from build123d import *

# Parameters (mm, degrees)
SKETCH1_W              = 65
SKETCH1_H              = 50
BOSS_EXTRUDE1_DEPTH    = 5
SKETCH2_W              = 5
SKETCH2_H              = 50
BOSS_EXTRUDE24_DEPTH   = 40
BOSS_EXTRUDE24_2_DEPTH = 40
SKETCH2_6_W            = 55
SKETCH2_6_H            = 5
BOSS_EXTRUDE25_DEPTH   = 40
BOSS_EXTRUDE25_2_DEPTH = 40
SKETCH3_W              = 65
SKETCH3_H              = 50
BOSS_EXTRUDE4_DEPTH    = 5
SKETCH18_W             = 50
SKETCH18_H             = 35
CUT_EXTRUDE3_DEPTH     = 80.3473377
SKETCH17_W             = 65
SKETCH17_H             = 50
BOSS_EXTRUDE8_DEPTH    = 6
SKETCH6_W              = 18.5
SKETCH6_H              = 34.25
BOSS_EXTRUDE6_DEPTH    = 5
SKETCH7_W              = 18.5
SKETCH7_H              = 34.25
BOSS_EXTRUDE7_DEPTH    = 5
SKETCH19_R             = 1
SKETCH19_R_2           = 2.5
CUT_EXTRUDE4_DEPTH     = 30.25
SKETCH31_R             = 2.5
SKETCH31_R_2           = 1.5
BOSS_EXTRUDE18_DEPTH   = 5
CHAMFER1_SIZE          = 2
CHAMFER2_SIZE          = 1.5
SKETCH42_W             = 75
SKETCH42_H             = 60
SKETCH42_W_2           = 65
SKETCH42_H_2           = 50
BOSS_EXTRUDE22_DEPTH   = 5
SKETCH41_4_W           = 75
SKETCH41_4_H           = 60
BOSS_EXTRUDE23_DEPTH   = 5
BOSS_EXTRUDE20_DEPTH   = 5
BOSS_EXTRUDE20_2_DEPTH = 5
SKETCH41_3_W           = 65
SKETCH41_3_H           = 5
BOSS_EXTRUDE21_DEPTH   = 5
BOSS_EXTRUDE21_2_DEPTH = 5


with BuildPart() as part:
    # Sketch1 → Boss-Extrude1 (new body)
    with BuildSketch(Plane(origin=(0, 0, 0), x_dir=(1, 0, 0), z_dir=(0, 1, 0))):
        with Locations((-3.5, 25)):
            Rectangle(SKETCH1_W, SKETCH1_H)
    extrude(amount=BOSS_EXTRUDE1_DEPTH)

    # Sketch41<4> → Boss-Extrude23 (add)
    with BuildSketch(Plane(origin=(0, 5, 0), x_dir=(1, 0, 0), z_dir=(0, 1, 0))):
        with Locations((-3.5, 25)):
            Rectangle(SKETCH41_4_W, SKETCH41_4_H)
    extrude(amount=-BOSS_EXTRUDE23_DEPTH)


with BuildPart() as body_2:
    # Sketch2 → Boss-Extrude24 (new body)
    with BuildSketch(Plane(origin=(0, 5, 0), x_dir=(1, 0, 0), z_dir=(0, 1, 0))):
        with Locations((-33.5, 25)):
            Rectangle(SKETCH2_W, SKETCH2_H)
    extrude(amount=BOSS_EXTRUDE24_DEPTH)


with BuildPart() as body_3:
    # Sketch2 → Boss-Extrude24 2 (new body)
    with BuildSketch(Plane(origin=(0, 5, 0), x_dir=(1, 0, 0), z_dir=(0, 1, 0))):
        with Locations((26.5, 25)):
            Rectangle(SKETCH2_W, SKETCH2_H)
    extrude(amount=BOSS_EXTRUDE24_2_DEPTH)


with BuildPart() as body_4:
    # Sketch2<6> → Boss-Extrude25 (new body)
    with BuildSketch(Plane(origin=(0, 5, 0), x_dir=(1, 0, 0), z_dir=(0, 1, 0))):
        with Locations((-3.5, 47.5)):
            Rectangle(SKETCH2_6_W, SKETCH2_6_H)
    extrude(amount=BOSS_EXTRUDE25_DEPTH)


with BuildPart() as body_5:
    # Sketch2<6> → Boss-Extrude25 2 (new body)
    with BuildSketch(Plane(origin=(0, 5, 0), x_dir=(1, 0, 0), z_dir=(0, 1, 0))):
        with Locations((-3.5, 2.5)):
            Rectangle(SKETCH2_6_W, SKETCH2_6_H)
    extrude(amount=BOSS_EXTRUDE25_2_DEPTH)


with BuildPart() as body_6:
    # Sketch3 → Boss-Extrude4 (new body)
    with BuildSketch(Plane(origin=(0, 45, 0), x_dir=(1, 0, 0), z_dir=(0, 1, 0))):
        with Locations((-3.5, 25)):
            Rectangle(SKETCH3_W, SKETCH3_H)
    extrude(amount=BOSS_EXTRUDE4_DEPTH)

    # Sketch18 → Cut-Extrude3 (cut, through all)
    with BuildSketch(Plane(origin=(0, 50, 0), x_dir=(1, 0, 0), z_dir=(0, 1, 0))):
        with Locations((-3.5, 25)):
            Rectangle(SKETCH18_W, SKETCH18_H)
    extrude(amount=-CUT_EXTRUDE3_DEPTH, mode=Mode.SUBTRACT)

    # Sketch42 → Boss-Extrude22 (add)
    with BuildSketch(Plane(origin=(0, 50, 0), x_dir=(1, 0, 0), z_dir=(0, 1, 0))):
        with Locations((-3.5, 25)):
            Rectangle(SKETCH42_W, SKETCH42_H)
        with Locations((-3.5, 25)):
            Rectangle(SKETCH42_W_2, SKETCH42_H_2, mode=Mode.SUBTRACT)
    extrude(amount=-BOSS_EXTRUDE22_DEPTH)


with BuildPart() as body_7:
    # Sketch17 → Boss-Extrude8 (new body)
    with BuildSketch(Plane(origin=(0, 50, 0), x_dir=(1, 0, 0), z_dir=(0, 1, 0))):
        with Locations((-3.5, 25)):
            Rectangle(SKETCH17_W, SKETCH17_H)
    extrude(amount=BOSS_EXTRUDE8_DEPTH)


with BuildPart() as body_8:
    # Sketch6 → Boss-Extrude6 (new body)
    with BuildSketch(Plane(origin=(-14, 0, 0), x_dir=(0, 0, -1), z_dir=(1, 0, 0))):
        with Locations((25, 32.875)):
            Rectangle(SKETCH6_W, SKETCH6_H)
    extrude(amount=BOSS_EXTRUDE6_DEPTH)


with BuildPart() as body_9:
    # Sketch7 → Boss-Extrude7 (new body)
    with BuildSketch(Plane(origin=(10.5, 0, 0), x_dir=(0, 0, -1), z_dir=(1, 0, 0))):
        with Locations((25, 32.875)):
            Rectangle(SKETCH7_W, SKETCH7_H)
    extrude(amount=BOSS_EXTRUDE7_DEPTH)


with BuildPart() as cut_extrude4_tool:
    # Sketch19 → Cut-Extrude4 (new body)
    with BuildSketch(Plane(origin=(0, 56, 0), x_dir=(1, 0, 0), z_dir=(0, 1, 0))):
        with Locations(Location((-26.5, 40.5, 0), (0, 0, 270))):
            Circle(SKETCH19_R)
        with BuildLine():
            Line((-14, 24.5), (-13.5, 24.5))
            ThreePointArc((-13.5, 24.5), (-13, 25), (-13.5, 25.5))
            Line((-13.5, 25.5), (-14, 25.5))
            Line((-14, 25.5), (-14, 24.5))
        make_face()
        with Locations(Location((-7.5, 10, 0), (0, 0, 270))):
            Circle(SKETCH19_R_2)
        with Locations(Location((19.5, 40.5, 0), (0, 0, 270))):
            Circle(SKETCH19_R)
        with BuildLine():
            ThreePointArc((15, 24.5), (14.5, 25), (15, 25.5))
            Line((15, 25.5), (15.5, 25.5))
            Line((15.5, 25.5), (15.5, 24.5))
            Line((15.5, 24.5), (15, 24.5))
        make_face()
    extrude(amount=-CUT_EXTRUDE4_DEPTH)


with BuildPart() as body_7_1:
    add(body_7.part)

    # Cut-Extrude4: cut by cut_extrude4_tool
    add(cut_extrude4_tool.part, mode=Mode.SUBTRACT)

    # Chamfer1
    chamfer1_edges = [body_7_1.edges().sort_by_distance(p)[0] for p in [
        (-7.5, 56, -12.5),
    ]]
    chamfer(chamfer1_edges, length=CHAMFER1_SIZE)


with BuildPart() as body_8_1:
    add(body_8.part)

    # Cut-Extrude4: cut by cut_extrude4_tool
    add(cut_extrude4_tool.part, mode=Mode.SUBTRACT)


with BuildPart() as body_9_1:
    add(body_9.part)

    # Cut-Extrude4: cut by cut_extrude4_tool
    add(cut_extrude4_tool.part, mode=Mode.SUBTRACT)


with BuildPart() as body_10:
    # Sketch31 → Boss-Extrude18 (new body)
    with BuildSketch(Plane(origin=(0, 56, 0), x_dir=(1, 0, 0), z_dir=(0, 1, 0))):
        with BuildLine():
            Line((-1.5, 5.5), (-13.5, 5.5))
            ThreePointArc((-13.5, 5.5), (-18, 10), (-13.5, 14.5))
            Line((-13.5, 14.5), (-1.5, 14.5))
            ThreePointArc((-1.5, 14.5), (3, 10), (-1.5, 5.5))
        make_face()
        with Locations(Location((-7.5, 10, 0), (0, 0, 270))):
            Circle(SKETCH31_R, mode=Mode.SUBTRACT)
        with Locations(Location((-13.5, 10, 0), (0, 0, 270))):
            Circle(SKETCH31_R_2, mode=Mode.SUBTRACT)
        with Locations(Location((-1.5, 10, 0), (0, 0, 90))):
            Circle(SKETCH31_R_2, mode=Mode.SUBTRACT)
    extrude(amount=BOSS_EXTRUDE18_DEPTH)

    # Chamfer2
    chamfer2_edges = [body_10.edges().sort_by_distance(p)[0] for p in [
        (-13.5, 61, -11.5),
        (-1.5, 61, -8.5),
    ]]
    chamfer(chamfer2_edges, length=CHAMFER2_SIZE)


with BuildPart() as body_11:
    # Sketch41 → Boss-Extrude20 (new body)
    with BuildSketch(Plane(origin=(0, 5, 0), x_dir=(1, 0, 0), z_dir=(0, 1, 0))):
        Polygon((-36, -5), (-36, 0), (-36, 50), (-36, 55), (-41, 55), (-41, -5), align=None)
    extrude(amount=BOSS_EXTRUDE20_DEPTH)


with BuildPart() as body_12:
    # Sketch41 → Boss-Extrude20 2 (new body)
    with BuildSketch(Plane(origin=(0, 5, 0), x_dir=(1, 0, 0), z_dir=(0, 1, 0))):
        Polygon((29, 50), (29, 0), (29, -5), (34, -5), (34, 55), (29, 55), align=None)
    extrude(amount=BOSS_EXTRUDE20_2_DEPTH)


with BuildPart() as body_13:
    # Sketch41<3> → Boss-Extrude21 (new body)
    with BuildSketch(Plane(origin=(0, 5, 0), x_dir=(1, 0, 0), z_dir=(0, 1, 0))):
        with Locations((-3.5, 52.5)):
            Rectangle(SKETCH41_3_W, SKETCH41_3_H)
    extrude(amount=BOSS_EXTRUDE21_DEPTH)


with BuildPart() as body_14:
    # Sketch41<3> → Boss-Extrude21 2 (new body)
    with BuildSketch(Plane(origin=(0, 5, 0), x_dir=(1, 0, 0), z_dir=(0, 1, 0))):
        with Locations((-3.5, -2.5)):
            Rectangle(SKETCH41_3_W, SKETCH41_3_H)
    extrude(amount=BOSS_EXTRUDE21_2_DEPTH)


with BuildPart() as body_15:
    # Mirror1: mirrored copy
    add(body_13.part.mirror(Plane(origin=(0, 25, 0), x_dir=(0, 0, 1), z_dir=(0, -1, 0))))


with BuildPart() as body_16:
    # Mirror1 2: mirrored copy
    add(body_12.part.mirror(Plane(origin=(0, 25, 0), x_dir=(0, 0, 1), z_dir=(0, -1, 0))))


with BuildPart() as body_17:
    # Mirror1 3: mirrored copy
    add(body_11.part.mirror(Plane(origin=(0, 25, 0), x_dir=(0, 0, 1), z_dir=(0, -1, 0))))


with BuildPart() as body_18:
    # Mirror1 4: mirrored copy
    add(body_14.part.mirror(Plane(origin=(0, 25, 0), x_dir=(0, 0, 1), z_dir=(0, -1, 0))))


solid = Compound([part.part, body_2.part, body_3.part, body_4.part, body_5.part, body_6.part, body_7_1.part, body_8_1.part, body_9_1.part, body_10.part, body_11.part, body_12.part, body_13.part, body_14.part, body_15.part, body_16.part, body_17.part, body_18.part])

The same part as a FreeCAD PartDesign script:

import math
import FreeCAD as App
import Part
import Sketcher
Q = App.Units.Quantity


def edges_at(feature, points):
    """Names of the edges that pass closest to the given points."""
    edges = feature.Shape.Edges
    near = lambda p: min(range(len(edges)), key=lambda i: edges[i].distToShape(Part.Vertex(*p))[0])
    return sorted({f"Edge{near(p) + 1}" for p in points})

doc = App.newDocument("Part")
body = doc.addObject("PartDesign::Body", "Body")

sketch1 = body.newObject("Sketcher::SketchObject", "Sketch")
sketch1.AttachmentSupport = (doc.getObject("XZ_Plane"), [""])
sketch1.MapMode = "FlatFace"
sketch1.addGeometry([
    Part.LineSegment(App.Vector(-36, -50, 0), App.Vector(-36, 0, 0)),
    Part.LineSegment(App.Vector(-36, 0, 0), App.Vector(29, 0, 0)),
    Part.LineSegment(App.Vector(29, 0, 0), App.Vector(29, -50, 0)),
    Part.LineSegment(App.Vector(29, -50, 0), App.Vector(-36, -50, 0)),
], False)
sketch1.addConstraint([
    Sketcher.Constraint("Coincident", 0, 2, 1, 1),
    Sketcher.Constraint("Coincident", 1, 2, 2, 1),
    Sketcher.Constraint("Coincident", 2, 2, 3, 1),
    Sketcher.Constraint("Coincident", 3, 2, 0, 1),
    Sketcher.Constraint("Vertical", 0),
    Sketcher.Constraint("Horizontal", 1),
    Sketcher.Constraint("Vertical", 2),
    Sketcher.Constraint("Horizontal", 3),
    Sketcher.Constraint("PointOnObject", 0, 2, -1),
    Sketcher.Constraint("DistanceX", 1, 1, 1, 2, Q("65 mm")),
    Sketcher.Constraint("DistanceY", 0, 1, 0, 2, Q("50 mm")),
    Sketcher.Constraint("DistanceX", 0, 2, -1, 1, Q("36 mm")),
])
pad1 = body.newObject("PartDesign::Pad", "Pad")
pad1.Profile = sketch1
pad1.Length = 5
pad1.Reversed = True

sketch2 = body.newObject("Sketcher::SketchObject", "Sketch001")
sketch2.AttachmentSupport = (doc.getObject("XZ_Plane"), [""])
sketch2.MapMode = "FlatFace"
sketch2.AttachmentOffset = App.Placement(App.Vector(0, 0, -5), App.Rotation())
sketch2.addGeometry([
    Part.LineSegment(App.Vector(-41, -55, 0), App.Vector(-41, 5, 0)),
    Part.LineSegment(App.Vector(-41, 5, 0), App.Vector(34, 5, 0)),
    Part.LineSegment(App.Vector(34, 5, 0), App.Vector(34, -55, 0)),
    Part.LineSegment(App.Vector(34, -55, 0), App.Vector(-41, -55, 0)),
], False)
sketch2.addConstraint([
    Sketcher.Constraint("Coincident", 0, 2, 1, 1),
    Sketcher.Constraint("Coincident", 1, 2, 2, 1),
    Sketcher.Constraint("Coincident", 2, 2, 3, 1),
    Sketcher.Constraint("Coincident", 3, 2, 0, 1),
    Sketcher.Constraint("Vertical", 0),
    Sketcher.Constraint("Horizontal", 1),
    Sketcher.Constraint("Vertical", 2),
    Sketcher.Constraint("Horizontal", 3),
    Sketcher.Constraint("DistanceX", 1, 1, 1, 2, Q("75 mm")),
    Sketcher.Constraint("DistanceY", 0, 1, 0, 2, Q("60 mm")),
    Sketcher.Constraint("DistanceX", 0, 2, -1, 1, Q("41 mm")),
    Sketcher.Constraint("DistanceY", -1, 1, 0, 2, Q("5 mm")),
])
pad2 = body.newObject("PartDesign::Pad", "Pad001")
pad2.Profile = sketch2
pad2.Length = 5
body2 = doc.addObject("PartDesign::Body", "Body001")

sketch3 = body2.newObject("Sketcher::SketchObject", "Sketch002")
sketch3.AttachmentSupport = (doc.getObject("XZ_Plane001"), [""])
sketch3.MapMode = "FlatFace"
sketch3.AttachmentOffset = App.Placement(App.Vector(0, 0, -5), App.Rotation())
sketch3.addGeometry([
    Part.LineSegment(App.Vector(-36, -50, 0), App.Vector(-36, 0, 0)),
    Part.LineSegment(App.Vector(-36, 0, 0), App.Vector(-31, 0, 0)),
    Part.LineSegment(App.Vector(-31, 0, 0), App.Vector(-31, -50, 0)),
    Part.LineSegment(App.Vector(-31, -50, 0), App.Vector(-36, -50, 0)),
], False)
sketch3.addConstraint([
    Sketcher.Constraint("Coincident", 0, 2, 1, 1),
    Sketcher.Constraint("Coincident", 1, 2, 2, 1),
    Sketcher.Constraint("Coincident", 2, 2, 3, 1),
    Sketcher.Constraint("Coincident", 3, 2, 0, 1),
    Sketcher.Constraint("Vertical", 0),
    Sketcher.Constraint("Horizontal", 1),
    Sketcher.Constraint("Vertical", 2),
    Sketcher.Constraint("Horizontal", 3),
    Sketcher.Constraint("PointOnObject", 0, 2, -1),
    Sketcher.Constraint("DistanceX", 1, 1, 1, 2, Q("5 mm")),
    Sketcher.Constraint("DistanceY", 0, 1, 0, 2, Q("50 mm")),
    Sketcher.Constraint("DistanceX", 0, 2, -1, 1, Q("36 mm")),
])
pad3 = body2.newObject("PartDesign::Pad", "Pad002")
pad3.Profile = sketch3
pad3.Length = 40
pad3.Reversed = True
body3 = doc.addObject("PartDesign::Body", "Body002")

sketch4 = body3.newObject("Sketcher::SketchObject", "Sketch003")
sketch4.AttachmentSupport = (doc.getObject("XZ_Plane002"), [""])
sketch4.MapMode = "FlatFace"
sketch4.AttachmentOffset = App.Placement(App.Vector(0, 0, -5), App.Rotation())
sketch4.addGeometry([
    Part.LineSegment(App.Vector(24, -50, 0), App.Vector(24, 0, 0)),
    Part.LineSegment(App.Vector(24, 0, 0), App.Vector(29, 0, 0)),
    Part.LineSegment(App.Vector(29, 0, 0), App.Vector(29, -50, 0)),
    Part.LineSegment(App.Vector(29, -50, 0), App.Vector(24, -50, 0)),
], False)
sketch4.addConstraint([
    Sketcher.Constraint("Coincident", 0, 2, 1, 1),
    Sketcher.Constraint("Coincident", 1, 2, 2, 1),
    Sketcher.Constraint("Coincident", 2, 2, 3, 1),
    Sketcher.Constraint("Coincident", 3, 2, 0, 1),
    Sketcher.Constraint("Vertical", 0),
    Sketcher.Constraint("Horizontal", 1),
    Sketcher.Constraint("Vertical", 2),
    Sketcher.Constraint("Horizontal", 3),
    Sketcher.Constraint("PointOnObject", 0, 2, -1),
    Sketcher.Constraint("DistanceX", 1, 1, 1, 2, Q("5 mm")),
    Sketcher.Constraint("DistanceY", 0, 1, 0, 2, Q("50 mm")),
    Sketcher.Constraint("DistanceX", -1, 1, 0, 2, Q("24 mm")),
])
pad4 = body3.newObject("PartDesign::Pad", "Pad003")
pad4.Profile = sketch4
pad4.Length = 40
pad4.Reversed = True
body4 = doc.addObject("PartDesign::Body", "Body003")

sketch5 = body4.newObject("Sketcher::SketchObject", "Sketch004")
sketch5.AttachmentSupport = (doc.getObject("XZ_Plane003"), [""])
sketch5.MapMode = "FlatFace"
sketch5.AttachmentOffset = App.Placement(App.Vector(0, 0, -5), App.Rotation())
sketch5.addGeometry([
    Part.LineSegment(App.Vector(-31, -50, 0), App.Vector(-31, -45, 0)),
    Part.LineSegment(App.Vector(-31, -45, 0), App.Vector(24, -45, 0)),
    Part.LineSegment(App.Vector(24, -45, 0), App.Vector(24, -50, 0)),
    Part.LineSegment(App.Vector(24, -50, 0), App.Vector(-31, -50, 0)),
], False)
sketch5.addConstraint([
    Sketcher.Constraint("Coincident", 0, 2, 1, 1),
    Sketcher.Constraint("Coincident", 1, 2, 2, 1),
    Sketcher.Constraint("Coincident", 2, 2, 3, 1),
    Sketcher.Constraint("Coincident", 3, 2, 0, 1),
    Sketcher.Constraint("Vertical", 0),
    Sketcher.Constraint("Horizontal", 1),
    Sketcher.Constraint("Vertical", 2),
    Sketcher.Constraint("Horizontal", 3),
    Sketcher.Constraint("DistanceX", 1, 1, 1, 2, Q("55 mm")),
    Sketcher.Constraint("DistanceY", 0, 1, 0, 2, Q("5 mm")),
    Sketcher.Constraint("DistanceX", 0, 2, -1, 1, Q("31 mm")),
    Sketcher.Constraint("DistanceY", 0, 2, -1, 1, Q("45 mm")),
])
pad5 = body4.newObject("PartDesign::Pad", "Pad004")
pad5.Profile = sketch5
pad5.Length = 40
pad5.Reversed = True
body5 = doc.addObject("PartDesign::Body", "Body004")

sketch6 = body5.newObject("Sketcher::SketchObject", "Sketch005")
sketch6.AttachmentSupport = (doc.getObject("XZ_Plane004"), [""])
sketch6.MapMode = "FlatFace"
sketch6.AttachmentOffset = App.Placement(App.Vector(0, 0, -5), App.Rotation())
sketch6.addGeometry([
    Part.LineSegment(App.Vector(-31, -5, 0), App.Vector(-31, 0, 0)),
    Part.LineSegment(App.Vector(-31, 0, 0), App.Vector(24, 0, 0)),
    Part.LineSegment(App.Vector(24, 0, 0), App.Vector(24, -5, 0)),
    Part.LineSegment(App.Vector(24, -5, 0), App.Vector(-31, -5, 0)),
], False)
sketch6.addConstraint([
    Sketcher.Constraint("Coincident", 0, 2, 1, 1),
    Sketcher.Constraint("Coincident", 1, 2, 2, 1),
    Sketcher.Constraint("Coincident", 2, 2, 3, 1),
    Sketcher.Constraint("Coincident", 3, 2, 0, 1),
    Sketcher.Constraint("Vertical", 0),
    Sketcher.Constraint("Horizontal", 1),
    Sketcher.Constraint("Vertical", 2),
    Sketcher.Constraint("Horizontal", 3),
    Sketcher.Constraint("PointOnObject", 0, 2, -1),
    Sketcher.Constraint("DistanceX", 1, 1, 1, 2, Q("55 mm")),
    Sketcher.Constraint("DistanceY", 0, 1, 0, 2, Q("5 mm")),
    Sketcher.Constraint("DistanceX", 0, 2, -1, 1, Q("31 mm")),
])
pad6 = body5.newObject("PartDesign::Pad", "Pad005")
pad6.Profile = sketch6
pad6.Length = 40
pad6.Reversed = True
body6 = doc.addObject("PartDesign::Body", "Body005")

sketch7 = body6.newObject("Sketcher::SketchObject", "Sketch006")
sketch7.AttachmentSupport = (doc.getObject("XZ_Plane005"), [""])
sketch7.MapMode = "FlatFace"
sketch7.AttachmentOffset = App.Placement(App.Vector(0, 0, -45), App.Rotation())
sketch7.addGeometry([
    Part.LineSegment(App.Vector(-36, -50, 0), App.Vector(-36, 0, 0)),
    Part.LineSegment(App.Vector(-36, 0, 0), App.Vector(29, 0, 0)),
    Part.LineSegment(App.Vector(29, 0, 0), App.Vector(29, -50, 0)),
    Part.LineSegment(App.Vector(29, -50, 0), App.Vector(-36, -50, 0)),
], False)
sketch7.addConstraint([
    Sketcher.Constraint("Coincident", 0, 2, 1, 1),
    Sketcher.Constraint("Coincident", 1, 2, 2, 1),
    Sketcher.Constraint("Coincident", 2, 2, 3, 1),
    Sketcher.Constraint("Coincident", 3, 2, 0, 1),
    Sketcher.Constraint("Vertical", 0),
    Sketcher.Constraint("Horizontal", 1),
    Sketcher.Constraint("Vertical", 2),
    Sketcher.Constraint("Horizontal", 3),
    Sketcher.Constraint("PointOnObject", 0, 2, -1),
    Sketcher.Constraint("DistanceX", 1, 1, 1, 2, Q("65 mm")),
    Sketcher.Constraint("DistanceY", 0, 1, 0, 2, Q("50 mm")),
    Sketcher.Constraint("DistanceX", 0, 2, -1, 1, Q("36 mm")),
])
pad7 = body6.newObject("PartDesign::Pad", "Pad006")
pad7.Profile = sketch7
pad7.Length = 5
pad7.Reversed = True

sketch8 = body6.newObject("Sketcher::SketchObject", "Sketch007")
sketch8.AttachmentSupport = (doc.getObject("XZ_Plane005"), [""])
sketch8.MapMode = "FlatFace"
sketch8.AttachmentOffset = App.Placement(App.Vector(0, 0, -50), App.Rotation())
sketch8.addGeometry([
    Part.LineSegment(App.Vector(-28.5, -42.5, 0), App.Vector(-28.5, -7.5, 0)),
    Part.LineSegment(App.Vector(-28.5, -7.5, 0), App.Vector(21.5, -7.5, 0)),
    Part.LineSegment(App.Vector(21.5, -7.5, 0), App.Vector(21.5, -42.5, 0)),
    Part.LineSegment(App.Vector(21.5, -42.5, 0), App.Vector(-28.5, -42.5, 0)),
], False)
sketch8.addConstraint([
    Sketcher.Constraint("Coincident", 0, 2, 1, 1),
    Sketcher.Constraint("Coincident", 1, 2, 2, 1),
    Sketcher.Constraint("Coincident", 2, 2, 3, 1),
    Sketcher.Constraint("Coincident", 3, 2, 0, 1),
    Sketcher.Constraint("Vertical", 0),
    Sketcher.Constraint("Horizontal", 1),
    Sketcher.Constraint("Vertical", 2),
    Sketcher.Constraint("Horizontal", 3),
    Sketcher.Constraint("DistanceX", 1, 1, 1, 2, Q("50 mm")),
    Sketcher.Constraint("DistanceY", 0, 1, 0, 2, Q("35 mm")),
    Sketcher.Constraint("DistanceX", 0, 2, -1, 1, Q("28.5 mm")),
    Sketcher.Constraint("DistanceY", 0, 2, -1, 1, Q("7.5 mm")),
])
pocket1 = body6.newObject("PartDesign::Pocket", "Pocket")
pocket1.Profile = sketch8
pocket1.Type = "ThroughAll"
pocket1.Reversed = True

sketch9 = body6.newObject("Sketcher::SketchObject", "Sketch008")
sketch9.AttachmentSupport = (doc.getObject("XZ_Plane005"), [""])
sketch9.MapMode = "FlatFace"
sketch9.AttachmentOffset = App.Placement(App.Vector(0, 0, -50), App.Rotation())
sketch9.addGeometry([
    Part.LineSegment(App.Vector(-41, -55, 0), App.Vector(-41, 5, 0)),
    Part.LineSegment(App.Vector(-41, 5, 0), App.Vector(34, 5, 0)),
    Part.LineSegment(App.Vector(34, 5, 0), App.Vector(34, -55, 0)),
    Part.LineSegment(App.Vector(34, -55, 0), App.Vector(-41, -55, 0)),
    Part.LineSegment(App.Vector(29, 0, 0), App.Vector(-36, 0, 0)),
    Part.LineSegment(App.Vector(-36, 0, 0), App.Vector(-36, -50, 0)),
    Part.LineSegment(App.Vector(-36, -50, 0), App.Vector(29, -50, 0)),
    Part.LineSegment(App.Vector(29, -50, 0), App.Vector(29, 0, 0)),
], False)
sketch9.addConstraint([
    Sketcher.Constraint("Coincident", 0, 2, 1, 1),
    Sketcher.Constraint("Coincident", 1, 2, 2, 1),
    Sketcher.Constraint("Coincident", 2, 2, 3, 1),
    Sketcher.Constraint("Coincident", 3, 2, 0, 1),
    Sketcher.Constraint("Coincident", 4, 2, 5, 1),
    Sketcher.Constraint("Coincident", 5, 2, 6, 1),
    Sketcher.Constraint("Coincident", 6, 2, 7, 1),
    Sketcher.Constraint("Coincident", 7, 2, 4, 1),
    Sketcher.Constraint("Vertical", 0),
    Sketcher.Constraint("Horizontal", 1),
    Sketcher.Constraint("Vertical", 2),
    Sketcher.Constraint("Horizontal", 3),
    Sketcher.Constraint("Horizontal", 4),
    Sketcher.Constraint("Vertical", 5),
    Sketcher.Constraint("Horizontal", 6),
    Sketcher.Constraint("Vertical", 7),
    Sketcher.Constraint("PointOnObject", 4, 2, -1),
    Sketcher.Constraint("DistanceX", 1, 1, 1, 2, Q("75 mm")),
    Sketcher.Constraint("DistanceX", 4, 2, 4, 1, Q("65 mm")),
    Sketcher.Constraint("DistanceY", 0, 1, 0, 2, Q("60 mm")),
    Sketcher.Constraint("DistanceY", 5, 2, 5, 1, Q("50 mm")),
    Sketcher.Constraint("DistanceX", 0, 2, -1, 1, Q("41 mm")),
    Sketcher.Constraint("DistanceY", -1, 1, 0, 2, Q("5 mm")),
    Sketcher.Constraint("DistanceX", 4, 2, -1, 1, Q("36 mm")),
])
pad8 = body6.newObject("PartDesign::Pad", "Pad007")
pad8.Profile = sketch9
pad8.Length = 5
body7 = doc.addObject("PartDesign::Body", "Body006")

sketch10 = body7.newObject("Sketcher::SketchObject", "Sketch009")
sketch10.AttachmentSupport = (doc.getObject("XZ_Plane006"), [""])
sketch10.MapMode = "FlatFace"
sketch10.AttachmentOffset = App.Placement(App.Vector(0, 0, -50), App.Rotation())
sketch10.addGeometry([
    Part.LineSegment(App.Vector(-36, -50, 0), App.Vector(-36, 0, 0)),
    Part.LineSegment(App.Vector(-36, 0, 0), App.Vector(29, 0, 0)),
    Part.LineSegment(App.Vector(29, 0, 0), App.Vector(29, -50, 0)),
    Part.LineSegment(App.Vector(29, -50, 0), App.Vector(-36, -50, 0)),
], False)
sketch10.addConstraint([
    Sketcher.Constraint("Coincident", 0, 2, 1, 1),
    Sketcher.Constraint("Coincident", 1, 2, 2, 1),
    Sketcher.Constraint("Coincident", 2, 2, 3, 1),
    Sketcher.Constraint("Coincident", 3, 2, 0, 1),
    Sketcher.Constraint("Vertical", 0),
    Sketcher.Constraint("Horizontal", 1),
    Sketcher.Constraint("Vertical", 2),
    Sketcher.Constraint("Horizontal", 3),
    Sketcher.Constraint("PointOnObject", 0, 2, -1),
    Sketcher.Constraint("DistanceX", 1, 1, 1, 2, Q("65 mm")),
    Sketcher.Constraint("DistanceY", 0, 1, 0, 2, Q("50 mm")),
    Sketcher.Constraint("DistanceX", 0, 2, -1, 1, Q("36 mm")),
])
pad9 = body7.newObject("PartDesign::Pad", "Pad008")
pad9.Profile = sketch10
pad9.Length = 6
pad9.Reversed = True
body8 = doc.addObject("PartDesign::Body", "Body007")

sketch11 = body8.newObject("Sketcher::SketchObject", "Sketch010")
sketch11.AttachmentSupport = (doc.getObject("YZ_Plane007"), [""])
sketch11.MapMode = "FlatFace"
sketch11.AttachmentOffset = App.Placement(App.Vector(0, 0, -14), App.Rotation())
sketch11.addGeometry([
    Part.LineSegment(App.Vector(50, -15.75, 0), App.Vector(15.75, -15.75, 0)),
    Part.LineSegment(App.Vector(15.75, -15.75, 0), App.Vector(15.75, -34.25, 0)),
    Part.LineSegment(App.Vector(15.75, -34.25, 0), App.Vector(50, -34.25, 0)),
    Part.LineSegment(App.Vector(50, -34.25, 0), App.Vector(50, -15.75, 0)),
], False)
sketch11.addConstraint([
    Sketcher.Constraint("Coincident", 0, 2, 1, 1),
    Sketcher.Constraint("Coincident", 1, 2, 2, 1),
    Sketcher.Constraint("Coincident", 2, 2, 3, 1),
    Sketcher.Constraint("Coincident", 3, 2, 0, 1),
    Sketcher.Constraint("Horizontal", 0),
    Sketcher.Constraint("Vertical", 1),
    Sketcher.Constraint("Horizontal", 2),
    Sketcher.Constraint("Vertical", 3),
    Sketcher.Constraint("DistanceY", 1, 2, 1, 1, Q("18.5 mm")),
    Sketcher.Constraint("DistanceX", -1, 1, 2, 2, Q("50 mm")),
    Sketcher.Constraint("DistanceX", 0, 2, 0, 1, Q("34.25 mm")),
    Sketcher.Constraint("DistanceY", 0, 2, -1, 1, Q("15.75 mm")),
])
pad10 = body8.newObject("PartDesign::Pad", "Pad009")
pad10.Profile = sketch11
pad10.Length = 5
body9 = doc.addObject("PartDesign::Body", "Body008")

sketch12 = body9.newObject("Sketcher::SketchObject", "Sketch011")
sketch12.AttachmentSupport = (doc.getObject("YZ_Plane008"), [""])
sketch12.MapMode = "FlatFace"
sketch12.AttachmentOffset = App.Placement(App.Vector(0, 0, 10.5), App.Rotation())
sketch12.addGeometry([
    Part.LineSegment(App.Vector(50, -15.75, 0), App.Vector(15.75, -15.75, 0)),
    Part.LineSegment(App.Vector(15.75, -15.75, 0), App.Vector(15.75, -34.25, 0)),
    Part.LineSegment(App.Vector(15.75, -34.25, 0), App.Vector(50, -34.25, 0)),
    Part.LineSegment(App.Vector(50, -34.25, 0), App.Vector(50, -15.75, 0)),
], False)
sketch12.addConstraint([
    Sketcher.Constraint("Coincident", 0, 2, 1, 1),
    Sketcher.Constraint("Coincident", 1, 2, 2, 1),
    Sketcher.Constraint("Coincident", 2, 2, 3, 1),
    Sketcher.Constraint("Coincident", 3, 2, 0, 1),
    Sketcher.Constraint("Horizontal", 0),
    Sketcher.Constraint("Vertical", 1),
    Sketcher.Constraint("Horizontal", 2),
    Sketcher.Constraint("Vertical", 3),
    Sketcher.Constraint("DistanceY", 1, 2, 1, 1, Q("18.5 mm")),
    Sketcher.Constraint("DistanceX", -1, 1, 2, 2, Q("50 mm")),
    Sketcher.Constraint("DistanceX", 0, 2, 0, 1, Q("34.25 mm")),
    Sketcher.Constraint("DistanceY", 0, 2, -1, 1, Q("15.75 mm")),
])
pad11 = body9.newObject("PartDesign::Pad", "Pad010")
pad11.Profile = sketch12
pad11.Length = 5
body10 = doc.addObject("PartDesign::Body", "Body009")
body10.AllowCompound = True

sketch13 = body10.newObject("Sketcher::SketchObject", "Sketch012")
sketch13.AttachmentSupport = (doc.getObject("XZ_Plane009"), [""])
sketch13.MapMode = "FlatFace"
sketch13.AttachmentOffset = App.Placement(App.Vector(0, 0, -56), App.Rotation())
sketch13.addGeometry([
    Part.Circle(App.Vector(-26.5, -40.5, 0), App.Vector(0, 0, 1), 1),
    Part.LineSegment(App.Vector(-14, -24.5, 0), App.Vector(-13.5, -24.5, 0)),
    Part.ArcOfCircle(Part.Circle(App.Vector(-13.5, -25, 0), App.Vector(0, 0, 1), 0.5), math.radians(-90), math.radians(90)),
    Part.LineSegment(App.Vector(-13.5, -25.5, 0), App.Vector(-14, -25.5, 0)),
    Part.LineSegment(App.Vector(-14, -25.5, 0), App.Vector(-14, -24.5, 0)),
    Part.Circle(App.Vector(-7.5, -10, 0), App.Vector(0, 0, 1), 2.5),
    Part.Circle(App.Vector(19.5, -40.5, 0), App.Vector(0, 0, 1), 1),
    Part.ArcOfCircle(Part.Circle(App.Vector(15, -25, 0), App.Vector(0, 0, 1), 0.5), math.radians(90), math.radians(270)),
    Part.LineSegment(App.Vector(15, -24.5, 0), App.Vector(15.5, -24.5, 0)),
    Part.LineSegment(App.Vector(15.5, -24.5, 0), App.Vector(15.5, -25.5, 0)),
    Part.LineSegment(App.Vector(15.5, -25.5, 0), App.Vector(15, -25.5, 0)),
], False)
sketch13.addConstraint([
    Sketcher.Constraint("Tangent", 1, 2, 2, 2),
    Sketcher.Constraint("Tangent", 2, 1, 3, 1),
    Sketcher.Constraint("Coincident", 3, 2, 4, 1),
    Sketcher.Constraint("Coincident", 4, 2, 1, 1),
    Sketcher.Constraint("Tangent", 7, 1, 8, 1),
    Sketcher.Constraint("Coincident", 8, 2, 9, 1),
    Sketcher.Constraint("Coincident", 9, 2, 10, 1),
    Sketcher.Constraint("Tangent", 10, 2, 7, 2),
    Sketcher.Constraint("Horizontal", 1),
    Sketcher.Constraint("Horizontal", 3),
    Sketcher.Constraint("Vertical", 4),
    Sketcher.Constraint("Horizontal", 8),
    Sketcher.Constraint("Vertical", 9),
    Sketcher.Constraint("Horizontal", 10),
    Sketcher.Constraint("Equal", 0, 6),
    Sketcher.Constraint("Equal", 2, 7),
    Sketcher.Constraint("Horizontal", 0, 3, 6, 3),
    Sketcher.Constraint("Horizontal", 2, 3, 7, 3),
    Sketcher.Constraint("Equal", 3, 8),
    Sketcher.Constraint("Diameter", 0, Q("2 mm")),
    Sketcher.Constraint("Diameter", 5, Q("5 mm")),
    Sketcher.Constraint("Radius", 2, Q("0.5 mm")),
    Sketcher.Constraint("DistanceX", 1, 1, 1, 2, Q("0.5 mm")),
    Sketcher.Constraint("DistanceY", 2, 3, -1, 1, Q("25 mm")),
    Sketcher.Constraint("DistanceY", 5, 3, -1, 1, Q("10 mm")),
    Sketcher.Constraint("DistanceX", -1, 1, 7, 3, Q("15 mm")),
    Sketcher.Constraint("DistanceX", 3, 2, -1, 1, Q("14 mm")),
    Sketcher.Constraint("DistanceX", 0, 3, 2, 3, Q("13 mm")),
    Sketcher.Constraint("DistanceX", 2, 3, 5, 3, Q("6 mm")),
    Sketcher.Constraint("DistanceX", 2, 3, 6, 3, Q("33 mm")),
    Sketcher.Constraint("DistanceY", 0, 3, 1, 2, Q("16 mm")),
])
pad12 = body10.newObject("PartDesign::Pad", "Pad011")
pad12.Profile = sketch13
pad12.Length = 30.25
doc.recompute()

body11 = doc.addObject("PartDesign::Body", "Body010")
body11.BaseFeature = body10
boolean = body7.newObject("PartDesign::Boolean", "Boolean")
boolean.Type = "Cut"
boolean.addObjects([body11])
doc.recompute()

chamfer = body7.newObject("PartDesign::Chamfer", "Chamfer")
chamfer.Base = (boolean, edges_at(boolean, [(-7.5, 56, -12.5)]))
chamfer.Size = 2
doc.recompute()

body12 = doc.addObject("PartDesign::Body", "Body011")
body12.BaseFeature = body10
boolean2 = body8.newObject("PartDesign::Boolean", "Boolean001")
boolean2.Type = "Cut"
boolean2.addObjects([body12])
doc.recompute()

boolean3 = body9.newObject("PartDesign::Boolean", "Boolean002")
boolean3.Type = "Cut"
boolean3.addObjects([body10])
body13 = doc.addObject("PartDesign::Body", "Body012")

sketch14 = body13.newObject("Sketcher::SketchObject", "Sketch013")
sketch14.AttachmentSupport = (doc.getObject("XZ_Plane012"), [""])
sketch14.MapMode = "FlatFace"
sketch14.AttachmentOffset = App.Placement(App.Vector(0, 0, -56), App.Rotation())
sketch14.addGeometry([
    Part.LineSegment(App.Vector(-13.5, -5.5, 0), App.Vector(-1.5, -5.5, 0)),
    Part.ArcOfCircle(Part.Circle(App.Vector(-1.5, -10, 0), App.Vector(0, 0, 1), 4.5), math.radians(-90), math.radians(90)),
    Part.LineSegment(App.Vector(-1.5, -14.5, 0), App.Vector(-13.5, -14.5, 0)),
    Part.ArcOfCircle(Part.Circle(App.Vector(-13.5, -10, 0), App.Vector(0, 0, 1), 4.5), math.radians(90), math.radians(270)),
    Part.Circle(App.Vector(-1.5, -10, 0), App.Vector(0, 0, 1), 1.5),
    Part.Circle(App.Vector(-7.5, -10, 0), App.Vector(0, 0, 1), 2.5),
    Part.Circle(App.Vector(-13.5, -10, 0), App.Vector(0, 0, 1), 1.5),
], False)
sketch14.addConstraint([
    Sketcher.Constraint("Tangent", 0, 2, 1, 2),
    Sketcher.Constraint("Tangent", 1, 1, 2, 1),
    Sketcher.Constraint("Tangent", 2, 2, 3, 2),
    Sketcher.Constraint("Tangent", 3, 1, 0, 1),
    Sketcher.Constraint("Horizontal", 0),
    Sketcher.Constraint("Horizontal", 2),
    Sketcher.Constraint("Coincident", 4, 3, 1, 3),
    Sketcher.Constraint("Coincident", 6, 3, 3, 3),
    Sketcher.Constraint("Equal", 4, 6),
    Sketcher.Constraint("Horizontal", 4, 3, 5, 3),
    Sketcher.Constraint("Diameter", 4, Q("3 mm")),
    Sketcher.Constraint("Diameter", 5, Q("5 mm")),
    Sketcher.Constraint("Radius", 1, Q("4.5 mm")),
    Sketcher.Constraint("DistanceX", 0, 1, 0, 2, Q("12 mm")),
    Sketcher.Constraint("DistanceY", 1, 3, -1, 1, Q("10 mm")),
    Sketcher.Constraint("DistanceX", 5, 3, 1, 3, Q("6 mm")),
    Sketcher.Constraint("DistanceX", 1, 3, -1, 1, Q("1.5 mm")),
])
pad13 = body13.newObject("PartDesign::Pad", "Pad012")
pad13.Profile = sketch14
pad13.Length = 5
pad13.Reversed = True
doc.recompute()

chamfer2 = body13.newObject("PartDesign::Chamfer", "Chamfer001")
chamfer2.Base = (pad13, edges_at(pad13, [(-13.5, 61, -11.5), (-1.5, 61, -8.5)]))
chamfer2.Size = 1.5
body14 = doc.addObject("PartDesign::Body", "Body013")

sketch15 = body14.newObject("Sketcher::SketchObject", "Sketch014")
sketch15.AttachmentSupport = (doc.getObject("XZ_Plane013"), [""])
sketch15.MapMode = "FlatFace"
sketch15.AttachmentOffset = App.Placement(App.Vector(0, 0, -5), App.Rotation())
sketch15.addGeometry([
    Part.LineSegment(App.Vector(-36, 5, 0), App.Vector(-36, -55, 0)),
    Part.LineSegment(App.Vector(-36, -55, 0), App.Vector(-41, -55, 0)),
    Part.LineSegment(App.Vector(-41, -55, 0), App.Vector(-41, 5, 0)),
    Part.LineSegment(App.Vector(-41, 5, 0), App.Vector(-36, 5, 0)),
], False)
sketch15.addConstraint([
    Sketcher.Constraint("Coincident", 0, 2, 1, 1),
    Sketcher.Constraint("Coincident", 1, 2, 2, 1),
    Sketcher.Constraint("Coincident", 2, 2, 3, 1),
    Sketcher.Constraint("Coincident", 3, 2, 0, 1),
    Sketcher.Constraint("Vertical", 0),
    Sketcher.Constraint("Horizontal", 1),
    Sketcher.Constraint("Vertical", 2),
    Sketcher.Constraint("Horizontal", 3),
    Sketcher.Constraint("DistanceX", 1, 2, 1, 1, Q("5 mm")),
    Sketcher.Constraint("DistanceY", 0, 2, 0, 1, Q("60 mm")),
    Sketcher.Constraint("DistanceX", 0, 2, -1, 1, Q("36 mm")),
    Sketcher.Constraint("DistanceY", 0, 2, -1, 1, Q("55 mm")),
])
pad14 = body14.newObject("PartDesign::Pad", "Pad013")
pad14.Profile = sketch15
pad14.Length = 5
pad14.Reversed = True
body15 = doc.addObject("PartDesign::Body", "Body014")

sketch16 = body15.newObject("Sketcher::SketchObject", "Sketch015")
sketch16.AttachmentSupport = (doc.getObject("XZ_Plane014"), [""])
sketch16.MapMode = "FlatFace"
sketch16.AttachmentOffset = App.Placement(App.Vector(0, 0, -5), App.Rotation())
sketch16.addGeometry([
    Part.LineSegment(App.Vector(29, 5, 0), App.Vector(34, 5, 0)),
    Part.LineSegment(App.Vector(34, 5, 0), App.Vector(34, -55, 0)),
    Part.LineSegment(App.Vector(34, -55, 0), App.Vector(29, -55, 0)),
    Part.LineSegment(App.Vector(29, -55, 0), App.Vector(29, 5, 0)),
], False)
sketch16.addConstraint([
    Sketcher.Constraint("Coincident", 0, 2, 1, 1),
    Sketcher.Constraint("Coincident", 1, 2, 2, 1),
    Sketcher.Constraint("Coincident", 2, 2, 3, 1),
    Sketcher.Constraint("Coincident", 3, 2, 0, 1),
    Sketcher.Constraint("Horizontal", 0),
    Sketcher.Constraint("Vertical", 1),
    Sketcher.Constraint("Horizontal", 2),
    Sketcher.Constraint("Vertical", 3),
    Sketcher.Constraint("DistanceX", 0, 1, 0, 2, Q("5 mm")),
    Sketcher.Constraint("DistanceY", 1, 2, 1, 1, Q("60 mm")),
    Sketcher.Constraint("DistanceX", -1, 1, 0, 2, Q("34 mm")),
    Sketcher.Constraint("DistanceY", -1, 1, 0, 2, Q("5 mm")),
])
pad15 = body15.newObject("PartDesign::Pad", "Pad014")
pad15.Profile = sketch16
pad15.Length = 5
pad15.Reversed = True
body16 = doc.addObject("PartDesign::Body", "Body015")

sketch17 = body16.newObject("Sketcher::SketchObject", "Sketch016")
sketch17.AttachmentSupport = (doc.getObject("XZ_Plane015"), [""])
sketch17.MapMode = "FlatFace"
sketch17.AttachmentOffset = App.Placement(App.Vector(0, 0, -5), App.Rotation())
sketch17.addGeometry([
    Part.LineSegment(App.Vector(-36, -55, 0), App.Vector(-36, -50, 0)),
    Part.LineSegment(App.Vector(-36, -50, 0), App.Vector(29, -50, 0)),
    Part.LineSegment(App.Vector(29, -50, 0), App.Vector(29, -55, 0)),
    Part.LineSegment(App.Vector(29, -55, 0), App.Vector(-36, -55, 0)),
], False)
sketch17.addConstraint([
    Sketcher.Constraint("Coincident", 0, 2, 1, 1),
    Sketcher.Constraint("Coincident", 1, 2, 2, 1),
    Sketcher.Constraint("Coincident", 2, 2, 3, 1),
    Sketcher.Constraint("Coincident", 3, 2, 0, 1),
    Sketcher.Constraint("Vertical", 0),
    Sketcher.Constraint("Horizontal", 1),
    Sketcher.Constraint("Vertical", 2),
    Sketcher.Constraint("Horizontal", 3),
    Sketcher.Constraint("DistanceX", 1, 1, 1, 2, Q("65 mm")),
    Sketcher.Constraint("DistanceY", 0, 1, 0, 2, Q("5 mm")),
    Sketcher.Constraint("DistanceX", 0, 2, -1, 1, Q("36 mm")),
    Sketcher.Constraint("DistanceY", 0, 2, -1, 1, Q("50 mm")),
])
pad16 = body16.newObject("PartDesign::Pad", "Pad015")
pad16.Profile = sketch17
pad16.Length = 5
pad16.Reversed = True
body17 = doc.addObject("PartDesign::Body", "Body016")

sketch18 = body17.newObject("Sketcher::SketchObject", "Sketch017")
sketch18.AttachmentSupport = (doc.getObject("XZ_Plane016"), [""])
sketch18.MapMode = "FlatFace"
sketch18.AttachmentOffset = App.Placement(App.Vector(0, 0, -5), App.Rotation())
sketch18.addGeometry([
    Part.LineSegment(App.Vector(-36, 0, 0), App.Vector(-36, 5, 0)),
    Part.LineSegment(App.Vector(-36, 5, 0), App.Vector(29, 5, 0)),
    Part.LineSegment(App.Vector(29, 5, 0), App.Vector(29, 0, 0)),
    Part.LineSegment(App.Vector(29, 0, 0), App.Vector(-36, 0, 0)),
], False)
sketch18.addConstraint([
    Sketcher.Constraint("Coincident", 0, 2, 1, 1),
    Sketcher.Constraint("Coincident", 1, 2, 2, 1),
    Sketcher.Constraint("Coincident", 2, 2, 3, 1),
    Sketcher.Constraint("Coincident", 3, 2, 0, 1),
    Sketcher.Constraint("Vertical", 0),
    Sketcher.Constraint("Horizontal", 1),
    Sketcher.Constraint("Vertical", 2),
    Sketcher.Constraint("Horizontal", 3),
    Sketcher.Constraint("PointOnObject", 2, 2, -1),
    Sketcher.Constraint("DistanceX", 1, 1, 1, 2, Q("65 mm")),
    Sketcher.Constraint("DistanceY", 0, 1, 0, 2, Q("5 mm")),
    Sketcher.Constraint("DistanceX", 0, 2, -1, 1, Q("36 mm")),
])
pad17 = body17.newObject("PartDesign::Pad", "Pad016")
pad17.Profile = sketch18
pad17.Length = 5
pad17.Reversed = True
body18 = doc.addObject("PartDesign::Body", "Body017")
doc.recompute()

mirroring = doc.addObject("Part::Mirroring", "Mirroring")
mirroring.Source = body16
mirroring.Base = App.Vector(0, 25, 0)
mirroring.Normal = App.Vector(0, -1, 0)
body18.BaseFeature = mirroring
doc.recompute()
body19 = doc.addObject("PartDesign::Body", "Body018")
doc.recompute()

mirroring2 = doc.addObject("Part::Mirroring", "Mirroring001")
mirroring2.Source = body15
mirroring2.Base = App.Vector(0, 25, 0)
mirroring2.Normal = App.Vector(0, -1, 0)
body19.BaseFeature = mirroring2
doc.recompute()
body20 = doc.addObject("PartDesign::Body", "Body019")
doc.recompute()

mirroring3 = doc.addObject("Part::Mirroring", "Mirroring002")
mirroring3.Source = body14
mirroring3.Base = App.Vector(0, 25, 0)
mirroring3.Normal = App.Vector(0, -1, 0)
body20.BaseFeature = mirroring3
doc.recompute()
body21 = doc.addObject("PartDesign::Body", "Body020")
doc.recompute()

mirroring4 = doc.addObject("Part::Mirroring", "Mirroring003")
mirroring4.Source = body17
mirroring4.Base = App.Vector(0, 25, 0)
mirroring4.Normal = App.Vector(0, -1, 0)
body21.BaseFeature = mirroring4
doc.recompute()

doc.recompute()
